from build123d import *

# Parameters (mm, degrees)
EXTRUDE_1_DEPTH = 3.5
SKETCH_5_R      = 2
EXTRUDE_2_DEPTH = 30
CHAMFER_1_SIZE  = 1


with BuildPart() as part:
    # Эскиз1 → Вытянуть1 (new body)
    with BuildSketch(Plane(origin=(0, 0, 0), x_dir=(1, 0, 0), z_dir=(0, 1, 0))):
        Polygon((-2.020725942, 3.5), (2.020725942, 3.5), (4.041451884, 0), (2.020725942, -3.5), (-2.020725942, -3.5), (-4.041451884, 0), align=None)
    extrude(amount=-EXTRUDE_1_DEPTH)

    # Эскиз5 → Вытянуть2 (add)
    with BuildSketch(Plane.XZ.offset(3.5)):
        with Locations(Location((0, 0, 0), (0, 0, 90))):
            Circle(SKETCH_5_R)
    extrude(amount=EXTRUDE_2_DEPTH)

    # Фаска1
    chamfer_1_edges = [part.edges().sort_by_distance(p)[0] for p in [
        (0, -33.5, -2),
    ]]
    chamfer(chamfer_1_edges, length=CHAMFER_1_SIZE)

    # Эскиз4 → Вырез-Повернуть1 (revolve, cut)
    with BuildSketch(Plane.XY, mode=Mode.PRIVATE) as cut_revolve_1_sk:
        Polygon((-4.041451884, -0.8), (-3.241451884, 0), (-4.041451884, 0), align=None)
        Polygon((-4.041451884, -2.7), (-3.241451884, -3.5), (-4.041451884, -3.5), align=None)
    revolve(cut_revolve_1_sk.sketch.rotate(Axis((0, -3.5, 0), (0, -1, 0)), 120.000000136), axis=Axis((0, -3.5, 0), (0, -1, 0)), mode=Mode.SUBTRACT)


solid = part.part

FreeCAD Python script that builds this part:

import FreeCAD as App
import Part
import Sketcher
Q = App.Units.Quantity


def edges_at(feature, points):
    """Names of the edges that pass closest to the given points."""
    edges = feature.Shape.Edges
    near = lambda p: min(range(len(edges)), key=lambda i: edges[i].distToShape(Part.Vertex(*p))[0])
    return sorted({f"Edge{near(p) + 1}" for p in points})


def add_polygon(sketch, points):
    """Adds a closed chain of lines whose ends are joined by coincident constraints."""
    first, n = sketch.GeometryCount, len(points)
    for a, b in zip(points, points[1:] + points[:1]):
        sketch.addGeometry(Part.LineSegment(App.Vector(*a, 0), App.Vector(*b, 0)), False)
    for i in range(n):
        sketch.addConstraint(Sketcher.Constraint("Coincident", first + i, 2, first + (i + 1) % n, 1))

doc = App.newDocument("Part")
body = doc.addObject("PartDesign::Body", "Body")

# Sketch on XZ plane
sketch1 = body.newObject("Sketcher::SketchObject", "Sketch")
sketch1.AttachmentSupport = (doc.getObject("XZ_Plane"), [""])
sketch1.MapMode = "FlatFace"
add_polygon(sketch1, [(2, -3.5), (-2, -3.5), (-4, 0), (-2, 3.5), (2, 3.5), (4, 0)])  # lines 0-5
sketch1.addConstraint([
    Sketcher.Constraint("Horizontal", 0),
    Sketcher.Constraint("Horizontal", 3),
    Sketcher.Constraint("Symmetric", 0, 2, 3, 2, -1, 1),
    Sketcher.Constraint("Symmetric", 1, 2, 4, 2, -1, 1),
    Sketcher.Constraint("PointOnObject", 1, 2, -1),
    Sketcher.Constraint("Parallel", 2, 5),
    Sketcher.Constraint("Vertical", 0, 2, 2, 2),
    Sketcher.Constraint("Angle", 1, Q("120 deg")),
    Sketcher.Constraint("DistanceY", 0, 2, 2, 2, 7.0),
    Sketcher.Constraint("DistanceX", 0, 2, 0, 1, 4.041452),
])
pad1 = body.newObject("PartDesign::Pad", "Pad")
pad1.Profile = sketch1
pad1.Length = 3.5

# Sketch on XZ plane
sketch2 = body.newObject("Sketcher::SketchObject", "Sketch001")
sketch2.AttachmentSupport = (doc.getObject("XZ_Plane"), [""])
sketch2.MapMode = "FlatFace"
sketch2.AttachmentOffset = App.Placement(App.Vector(0, 0, 3.5), App.Rotation())
sketch2.addGeometry(Part.Circle(App.Vector(0, 0, 0), App.Vector(0, 0, 1), 2), False)
sketch2.addConstraint([
    Sketcher.Constraint("Coincident", 0, 3, -1, 1),
    Sketcher.Constraint("Diameter", 0, 4.0),
])
pad2 = body.newObject("PartDesign::Pad", "Pad001")
pad2.Profile = sketch2
pad2.Length = 30
doc.recompute()

chamfer = body.newObject("PartDesign::Chamfer", "Chamfer")
chamfer.Base = (pad2, edges_at(pad2, [(0, -33.5, -2)]))
chamfer.Size = 1

# Sketch on XY plane
sketch3 = body.newObject("Sketcher::SketchObject", "Sketch002")
sketch3.AttachmentSupport = (doc.getObject("XY_Plane"), [""])
sketch3.MapMode = "FlatFace"
add_polygon(sketch3, [(-4, -0.8), (-3.2, 0), (-4, 0)])  # lines 0-2
add_polygon(sketch3, [(-3.2, -3.5), (-4, -2.7), (-4, -3.5)])  # lines 3-5
sketch3.addConstraint([
    Sketcher.Constraint("Horizontal", 1),
    Sketcher.Constraint("Vertical", 2),
    Sketcher.Constraint("Vertical", 4),
    Sketcher.Constraint("Horizontal", 5),
    Sketcher.Constraint("PointOnObject", 0, 2, -1),
    Sketcher.Constraint("Perpendicular", 0, 3),
    Sketcher.Constraint("Vertical", 2, 2, 3, 2),
    Sketcher.Constraint("Vertical", 0, 2, 5, 2),
    Sketcher.Constraint("Equal", 5, 2),
    Sketcher.Constraint("DistanceX", 1, 2, 1, 1, 0.8),
    Sketcher.Constraint("DistanceY", 3, 2, -1, 1, 2.7),
    Sketcher.Constraint("DistanceX", 0, 2, -1, 1, 3.241452),
])
groove = body.newObject("PartDesign::Groove", "Groove")
groove.Profile = sketch3
groove.ReferenceAxis = (sketch3, ["V_Axis"])
groove.Angle = 360

doc.recompute()
